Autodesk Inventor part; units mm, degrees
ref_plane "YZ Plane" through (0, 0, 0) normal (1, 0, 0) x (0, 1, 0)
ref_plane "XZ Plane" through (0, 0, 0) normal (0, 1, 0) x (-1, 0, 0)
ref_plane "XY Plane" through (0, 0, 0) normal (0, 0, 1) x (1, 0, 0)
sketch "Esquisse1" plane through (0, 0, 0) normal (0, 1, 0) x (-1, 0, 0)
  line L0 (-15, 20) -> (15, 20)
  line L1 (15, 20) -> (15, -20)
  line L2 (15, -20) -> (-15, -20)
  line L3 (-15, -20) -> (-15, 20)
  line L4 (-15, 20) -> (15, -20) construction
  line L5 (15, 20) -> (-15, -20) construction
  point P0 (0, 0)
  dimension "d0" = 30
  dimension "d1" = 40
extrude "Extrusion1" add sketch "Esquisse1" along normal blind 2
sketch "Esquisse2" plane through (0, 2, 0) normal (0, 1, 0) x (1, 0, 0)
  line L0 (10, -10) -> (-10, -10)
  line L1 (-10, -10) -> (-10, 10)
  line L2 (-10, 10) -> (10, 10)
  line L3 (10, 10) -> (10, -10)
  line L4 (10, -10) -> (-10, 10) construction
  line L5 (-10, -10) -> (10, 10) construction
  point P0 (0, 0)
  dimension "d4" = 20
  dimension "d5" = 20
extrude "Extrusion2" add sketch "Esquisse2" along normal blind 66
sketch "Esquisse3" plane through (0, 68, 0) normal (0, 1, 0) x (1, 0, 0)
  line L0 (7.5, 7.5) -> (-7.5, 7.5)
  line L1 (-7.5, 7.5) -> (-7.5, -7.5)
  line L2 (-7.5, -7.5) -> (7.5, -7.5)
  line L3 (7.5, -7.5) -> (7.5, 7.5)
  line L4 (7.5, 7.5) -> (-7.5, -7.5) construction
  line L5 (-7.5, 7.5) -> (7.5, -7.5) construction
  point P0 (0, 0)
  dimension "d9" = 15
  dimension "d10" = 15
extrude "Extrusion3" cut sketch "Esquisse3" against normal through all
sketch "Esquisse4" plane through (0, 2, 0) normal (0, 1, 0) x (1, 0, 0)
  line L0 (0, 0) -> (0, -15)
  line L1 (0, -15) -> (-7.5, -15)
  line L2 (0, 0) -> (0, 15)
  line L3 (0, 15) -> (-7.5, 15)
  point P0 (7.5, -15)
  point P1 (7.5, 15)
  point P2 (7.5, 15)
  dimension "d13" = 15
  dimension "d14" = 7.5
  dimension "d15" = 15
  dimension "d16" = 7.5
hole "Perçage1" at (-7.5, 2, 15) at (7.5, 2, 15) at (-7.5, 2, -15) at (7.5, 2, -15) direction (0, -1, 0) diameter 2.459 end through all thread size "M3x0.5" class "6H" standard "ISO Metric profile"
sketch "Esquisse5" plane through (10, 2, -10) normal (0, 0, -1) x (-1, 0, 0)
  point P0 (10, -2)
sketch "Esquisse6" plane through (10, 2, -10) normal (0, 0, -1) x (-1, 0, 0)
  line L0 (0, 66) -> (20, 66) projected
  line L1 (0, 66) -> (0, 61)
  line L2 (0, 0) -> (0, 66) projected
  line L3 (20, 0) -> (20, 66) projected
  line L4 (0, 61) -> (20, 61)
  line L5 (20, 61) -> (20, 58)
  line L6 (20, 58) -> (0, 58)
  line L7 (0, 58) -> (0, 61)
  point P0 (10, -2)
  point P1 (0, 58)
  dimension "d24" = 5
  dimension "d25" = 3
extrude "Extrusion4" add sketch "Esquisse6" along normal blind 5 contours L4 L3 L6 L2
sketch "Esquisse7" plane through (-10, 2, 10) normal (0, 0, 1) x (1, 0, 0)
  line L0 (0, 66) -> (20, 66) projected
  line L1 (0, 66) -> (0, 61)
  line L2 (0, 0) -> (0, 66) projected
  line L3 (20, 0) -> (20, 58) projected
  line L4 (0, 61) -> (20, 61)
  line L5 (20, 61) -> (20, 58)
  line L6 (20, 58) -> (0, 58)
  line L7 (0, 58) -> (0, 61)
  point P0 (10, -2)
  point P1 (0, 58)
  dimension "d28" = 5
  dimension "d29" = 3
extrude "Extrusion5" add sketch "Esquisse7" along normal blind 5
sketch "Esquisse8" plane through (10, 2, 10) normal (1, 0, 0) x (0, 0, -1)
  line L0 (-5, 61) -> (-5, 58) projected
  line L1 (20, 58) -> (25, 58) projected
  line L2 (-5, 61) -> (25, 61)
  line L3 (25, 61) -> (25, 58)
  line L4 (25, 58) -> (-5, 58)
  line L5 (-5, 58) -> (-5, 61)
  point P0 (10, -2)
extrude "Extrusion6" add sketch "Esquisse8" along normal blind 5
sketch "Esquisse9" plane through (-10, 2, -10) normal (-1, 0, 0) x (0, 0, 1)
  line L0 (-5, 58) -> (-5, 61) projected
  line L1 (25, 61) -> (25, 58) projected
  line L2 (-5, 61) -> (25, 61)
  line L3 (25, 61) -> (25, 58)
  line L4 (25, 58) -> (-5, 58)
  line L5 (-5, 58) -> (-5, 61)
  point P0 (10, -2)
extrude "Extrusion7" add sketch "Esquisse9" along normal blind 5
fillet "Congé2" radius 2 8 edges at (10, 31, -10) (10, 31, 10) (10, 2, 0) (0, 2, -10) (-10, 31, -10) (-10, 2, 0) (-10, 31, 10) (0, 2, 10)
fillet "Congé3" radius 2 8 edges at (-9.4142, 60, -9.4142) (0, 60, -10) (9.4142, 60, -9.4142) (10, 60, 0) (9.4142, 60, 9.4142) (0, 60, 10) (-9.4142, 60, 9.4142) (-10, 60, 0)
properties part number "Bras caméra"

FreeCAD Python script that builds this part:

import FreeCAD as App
import Part
import Sketcher

V = App.Vector


def edges_at(feature, points):
    """Names of the edges that pass closest to the given points."""
    edges = feature.Shape.Edges
    near = lambda p: min(range(len(edges)), key=lambda i: edges[i].distToShape(Part.Vertex(*p))[0])
    return sorted({f"Edge{near(p) + 1}" for p in points})


def add_polygon(sketch, points):
    """Adds a closed chain of lines whose ends are joined by coincident constraints."""
    first, n = sketch.GeometryCount, len(points)
    for a, b in zip(points, points[1:] + points[:1]):
        sketch.addGeometry(Part.LineSegment(App.Vector(*a, 0), App.Vector(*b, 0)), False)
    for i in range(n):
        sketch.addConstraint(Sketcher.Constraint("Coincident", first + i, 2, first + (i + 1) % n, 1))

doc = App.newDocument("Part")
params = doc.addObject("Spreadsheet::Sheet", "Params")
for row, (alias, value) in enumerate([
    ("sketch1_width", "30 mm"),
    ("sketch1_height", "40 mm"),
    ("pad1_length", "2 mm"),
    ("sketch2_width", "20 mm"),
    ("pad2_length", "66 mm"),
    ("sketch3_width", "15 mm"),
    ("hole_diameter", "2.459 mm"),
    ("sketch5_height", "3 mm"),
    ("sketch5_width", "20 mm"),
    ("pad3_length", "5 mm"),
    ("sketch6_height", "3 mm"),
    ("sketch6_width", "20 mm"),
    ("pad4_length", "5 mm"),
    ("sketch7_width", "3 mm"),
    ("sketch7_height", "30 mm"),
    ("pad5_length", "5 mm"),
    ("sketch8_width", "3 mm"),
    ("sketch8_height", "30 mm"),
    ("pad6_length", "5 mm"),
    ("fillet_radius", "2 mm"),
    ("fillet2_radius", "2 mm"),
], start=1):
    params.set(f"A{row}", alias)
    params.set(f"B{row}", "=" + value)
    params.setAlias(f"B{row}", alias)

body = doc.addObject("PartDesign::Body", "Body")

# Sketch on XZ plane
sketch1 = body.newObject("Sketcher::SketchObject", "Sketch")
sketch1.AttachmentSupport = (doc.getObject("XZ_Plane"), [""])
sketch1.MapMode = "FlatFace"
add_polygon(sketch1, [(-15, 20), (15, 20), (15, -20), (-15, -20)])  # lines 0-3
sketch1.addConstraint(Sketcher.Constraint("Horizontal", 0))
sketch1.addConstraint(Sketcher.Constraint("Vertical", 1))
sketch1.addConstraint(Sketcher.Constraint("Horizontal", 2))
sketch1.addConstraint(Sketcher.Constraint("Vertical", 3))
sketch1.addConstraint(Sketcher.Constraint("Symmetric", 0, 2, 2, 2, -1, 1))
sketch1.addConstraint(Sketcher.Constraint("DistanceX", 0, 1, 0, 2, 30.0))
sketch1.addConstraint(Sketcher.Constraint("DistanceY", 1, 2, 1, 1, 40.0))
sketch1.setExpression("Constraints[9]", "Params.sketch1_width")
sketch1.setExpression("Constraints[10]", "Params.sketch1_height")
pad1 = body.newObject("PartDesign::Pad", "Pad")
pad1.Profile = sketch1
pad1.setExpression("Length", "Params.pad1_length")
pad1.Reversed = True

# Sketch on XZ plane
sketch2 = body.newObject("Sketcher::SketchObject", "Sketch001")
sketch2.AttachmentSupport = (doc.getObject("XZ_Plane"), [""])
sketch2.MapMode = "FlatFace"
sketch2.AttachmentOffset = App.Placement(V(0, 0, -2), App.Rotation())
add_polygon(sketch2, [(-10, 10), (10, 10), (10, -10), (-10, -10)])  # lines 0-3
sketch2.addConstraint(Sketcher.Constraint("Horizontal", 0))
sketch2.addConstraint(Sketcher.Constraint("Vertical", 1))
sketch2.addConstraint(Sketcher.Constraint("Horizontal", 2))
sketch2.addConstraint(Sketcher.Constraint("Vertical", 3))
sketch2.addConstraint(Sketcher.Constraint("Symmetric", 0, 2, 2, 2, -1, 1))
sketch2.addConstraint(Sketcher.Constraint("Equal", 2, 1))
sketch2.addConstraint(Sketcher.Constraint("DistanceX", 0, 1, 0, 2, 20.0))
sketch2.setExpression("Constraints[10]", "Params.sketch2_width")
pad2 = body.newObject("PartDesign::Pad", "Pad001")
pad2.Profile = sketch2
pad2.setExpression("Length", "Params.pad2_length")
pad2.Reversed = True

# Sketch on XZ plane
sketch3 = body.newObject("Sketcher::SketchObject", "Sketch002")
sketch3.AttachmentSupport = (doc.getObject("XZ_Plane"), [""])
sketch3.MapMode = "FlatFace"
sketch3.AttachmentOffset = App.Placement(V(0, 0, -68), App.Rotation())
add_polygon(sketch3, [(8, 8), (8, -8), (-8, -8), (-8, 8)])  # lines 0-3
sketch3.addConstraint(Sketcher.Constraint("Vertical", 0))
sketch3.addConstraint(Sketcher.Constraint("Horizontal", 1))
sketch3.addConstraint(Sketcher.Constraint("Vertical", 2))
sketch3.addConstraint(Sketcher.Constraint("Horizontal", 3))
sketch3.addConstraint(Sketcher.Constraint("Symmetric", 0, 2, 2, 2, -1, 1))
sketch3.addConstraint(Sketcher.Constraint("Equal", 3, 0))
sketch3.addConstraint(Sketcher.Constraint("DistanceX", 1, 2, 1, 1, 15.0))
sketch3.setExpression("Constraints[10]", "Params.sketch3_width")
pocket1 = body.newObject("PartDesign::Pocket", "Pocket")
pocket1.Profile = sketch3
pocket1.Type = "ThroughAll"
pocket1.Reversed = True

# Sketch on XZ plane
sketch4 = body.newObject("Sketcher::SketchObject", "Sketch003")
sketch4.AttachmentSupport = (doc.getObject("XZ_Plane"), [""])
sketch4.MapMode = "FlatFace"
sketch4.AttachmentOffset = App.Placement(V(0, 0, -2), App.Rotation())
sketch4.addGeometry(Part.Circle(V(-7.5, 15, 0), V(0, 0, 1), 1.2), False)
sketch4.addGeometry(Part.Circle(V(7.5, 15, 0), V(0, 0, 1), 1.2), False)
sketch4.addGeometry(Part.Circle(V(-7.5, -15, 0), V(0, 0, 1), 1.2), False)
sketch4.addGeometry(Part.Circle(V(7.5, -15, 0), V(0, 0, 1), 1.2), False)
sketch4.addConstraint(Sketcher.Constraint("Equal", 0, 1))
sketch4.addConstraint(Sketcher.Constraint("Equal", 1, 2))
sketch4.addConstraint(Sketcher.Constraint("Equal", 2, 3))
sketch4.addConstraint(Sketcher.Constraint("Symmetric", 1, 3, 2, 3, -1, 1))
sketch4.addConstraint(Sketcher.Constraint("Symmetric", 0, 3, 3, 3, -1, 1))
sketch4.addConstraint(Sketcher.Constraint("Symmetric", 0, 3, 1, 3, -2))
sketch4.addConstraint(Sketcher.Constraint("Diameter", 0, 2.459))
sketch4.addConstraint(Sketcher.Constraint("DistanceY", -1, 1, 0, 3, 15.0))
sketch4.addConstraint(Sketcher.Constraint("DistanceX", 0, 3, 1, 3, 15.0))
doc.recompute()
hole = body.newObject("PartDesign::Hole", "Hole")
hole.Profile = sketch4
hole.ThreadType = "None"
hole.setExpression("Diameter", "Params.hole_diameter")
hole.DepthType = "ThroughAll"
hole.Reversed = True

# Sketch on XY plane
sketch5 = body.newObject("Sketcher::SketchObject", "Sketch004")
sketch5.AttachmentSupport = (doc.getObject("XY_Plane"), [""])
sketch5.MapMode = "FlatFace"
sketch5.AttachmentOffset = App.Placement(V(0, 0, -10), App.Rotation())
add_polygon(sketch5, [(-10, 63), (10, 63), (10, 60), (-10, 60)])  # lines 0-3
sketch5.addConstraint(Sketcher.Constraint("Horizontal", 0))
sketch5.addConstraint(Sketcher.Constraint("Vertical", 1))
sketch5.addConstraint(Sketcher.Constraint("Horizontal", 2))
sketch5.addConstraint(Sketcher.Constraint("Vertical", 3))
sketch5.addConstraint(Sketcher.Constraint("DistanceY", 1, 2, 1, 1, 3.0))
sketch5.addConstraint(Sketcher.Constraint("DistanceX", 0, 1, 0, 2, 20.0))
sketch5.addConstraint(Sketcher.Constraint("DistanceX", -1, 1, 0, 2, 10.0))
sketch5.addConstraint(Sketcher.Constraint("DistanceY", -1, 1, 0, 2, 63.0))
sketch5.setExpression("Constraints[8]", "Params.sketch5_height")
sketch5.setExpression("Constraints[9]", "Params.sketch5_width")
pad3 = body.newObject("PartDesign::Pad", "Pad002")
pad3.Profile = sketch5
pad3.setExpression("Length", "Params.pad3_length")
pad3.Reversed = True

# Sketch on XY plane
sketch6 = body.newObject("Sketcher::SketchObject", "Sketch005")
sketch6.AttachmentSupport = (doc.getObject("XY_Plane"), [""])
sketch6.MapMode = "FlatFace"
sketch6.AttachmentOffset = App.Placement(V(0, 0, 10), App.Rotation())
add_polygon(sketch6, [(-10, 63), (-10, 60), (10, 60), (10, 63)])  # lines 0-3
sketch6.addConstraint(Sketcher.Constraint("Vertical", 0))
sketch6.addConstraint(Sketcher.Constraint("Horizontal", 1))
sketch6.addConstraint(Sketcher.Constraint("Vertical", 2))
sketch6.addConstraint(Sketcher.Constraint("Horizontal", 3))
sketch6.addConstraint(Sketcher.Constraint("DistanceY", 0, 2, 0, 1, 3.0))
sketch6.addConstraint(Sketcher.Constraint("DistanceX", 1, 1, 1, 2, 20.0))
sketch6.addConstraint(Sketcher.Constraint("DistanceX", 0, 2, -1, 1, 10.0))
sketch6.addConstraint(Sketcher.Constraint("DistanceY", -1, 1, 0, 2, 60.0))
sketch6.setExpression("Constraints[8]", "Params.sketch6_height")
sketch6.setExpression("Constraints[9]", "Params.sketch6_width")
pad4 = body.newObject("PartDesign::Pad", "Pad003")
pad4.Profile = sketch6
pad4.setExpression("Length", "Params.pad4_length")

# Sketch on YZ plane
sketch7 = body.newObject("Sketcher::SketchObject", "Sketch006")
sketch7.AttachmentSupport = (doc.getObject("YZ_Plane"), [""])
sketch7.MapMode = "FlatFace"
sketch7.AttachmentOffset = App.Placement(V(0, 0, 10), App.Rotation())
add_polygon(sketch7, [(63, -15), (63, 15), (60, 15), (60, -15)])  # lines 0-3
sketch7.addConstraint(Sketcher.Constraint("Vertical", 0))
sketch7.addConstraint(Sketcher.Constraint("Horizontal", 1))
sketch7.addConstraint(Sketcher.Constraint("Vertical", 2))
sketch7.addConstraint(Sketcher.Constraint("Horizontal", 3))
sketch7.addConstraint(Sketcher.Constraint("DistanceX", 1, 2, 1, 1, 3.0))
sketch7.addConstraint(Sketcher.Constraint("DistanceY", 0, 1, 0, 2, 30.0))
sketch7.addConstraint(Sketcher.Constraint("DistanceX", -1, 1, 0, 2, 63.0))
sketch7.addConstraint(Sketcher.Constraint("DistanceY", -1, 1, 0, 2, 15.0))
sketch7.setExpression("Constraints[8]", "Params.sketch7_width")
sketch7.setExpression("Constraints[9]", "Params.sketch7_height")
pad5 = body.newObject("PartDesign::Pad", "Pad004")
pad5.Profile = sketch7
pad5.setExpression("Length", "Params.pad5_length")

# Sketch on YZ plane
sketch8 = body.newObject("Sketcher::SketchObject", "Sketch007")
sketch8.AttachmentSupport = (doc.getObject("YZ_Plane"), [""])
sketch8.MapMode = "FlatFace"
sketch8.AttachmentOffset = App.Placement(V(0, 0, -10), App.Rotation())
add_polygon(sketch8, [(63, -15), (60, -15), (60, 15), (63, 15)])  # lines 0-3
sketch8.addConstraint(Sketcher.Constraint("Horizontal", 0))
sketch8.addConstraint(Sketcher.Constraint("Vertical", 1))
sketch8.addConstraint(Sketcher.Constraint("Horizontal", 2))
sketch8.addConstraint(Sketcher.Constraint("Vertical", 3))
sketch8.addConstraint(Sketcher.Constraint("DistanceX", 0, 2, 0, 1, 3.0))
sketch8.addConstraint(Sketcher.Constraint("DistanceY", 1, 1, 1, 2, 30.0))
sketch8.addConstraint(Sketcher.Constraint("DistanceX", -1, 1, 0, 2, 60.0))
sketch8.addConstraint(Sketcher.Constraint("DistanceY", 0, 2, -1, 1, 15.0))
sketch8.setExpression("Constraints[8]", "Params.sketch8_width")
sketch8.setExpression("Constraints[9]", "Params.sketch8_height")
pad6 = body.newObject("PartDesign::Pad", "Pad005")
pad6.Profile = sketch8
pad6.setExpression("Length", "Params.pad6_length")
pad6.Reversed = True
doc.recompute()

fillet = body.newObject("PartDesign::Fillet", "Fillet")
fillet.Base = (pad6, edges_at(pad6, [
    (10, 31, -10),
    (10, 31, 10),
    (10, 2, 0),
    (0, 2, -10),
    (-10, 31, -10),
    (-10, 2, 0),
    (-10, 31, 10),
    (0, 2, 10),
]))
fillet.setExpression("Radius", "Params.fillet_radius")
doc.recompute()

fillet2 = body.newObject("PartDesign::Fillet", "Fillet001")
fillet2.Base = (fillet, edges_at(fillet, [
    (-9.414, 60, -9.414),
    (0, 60, -10),
    (9.414, 60, -9.414),
    (10, 60, 0),
    (9.414, 60, 9.414),
    (0, 60, 10),
    (-9.414, 60, 9.414),
    (-10, 60, 0),
]))
fillet2.setExpression("Radius", "Params.fillet2_radius")

doc.recompute()
